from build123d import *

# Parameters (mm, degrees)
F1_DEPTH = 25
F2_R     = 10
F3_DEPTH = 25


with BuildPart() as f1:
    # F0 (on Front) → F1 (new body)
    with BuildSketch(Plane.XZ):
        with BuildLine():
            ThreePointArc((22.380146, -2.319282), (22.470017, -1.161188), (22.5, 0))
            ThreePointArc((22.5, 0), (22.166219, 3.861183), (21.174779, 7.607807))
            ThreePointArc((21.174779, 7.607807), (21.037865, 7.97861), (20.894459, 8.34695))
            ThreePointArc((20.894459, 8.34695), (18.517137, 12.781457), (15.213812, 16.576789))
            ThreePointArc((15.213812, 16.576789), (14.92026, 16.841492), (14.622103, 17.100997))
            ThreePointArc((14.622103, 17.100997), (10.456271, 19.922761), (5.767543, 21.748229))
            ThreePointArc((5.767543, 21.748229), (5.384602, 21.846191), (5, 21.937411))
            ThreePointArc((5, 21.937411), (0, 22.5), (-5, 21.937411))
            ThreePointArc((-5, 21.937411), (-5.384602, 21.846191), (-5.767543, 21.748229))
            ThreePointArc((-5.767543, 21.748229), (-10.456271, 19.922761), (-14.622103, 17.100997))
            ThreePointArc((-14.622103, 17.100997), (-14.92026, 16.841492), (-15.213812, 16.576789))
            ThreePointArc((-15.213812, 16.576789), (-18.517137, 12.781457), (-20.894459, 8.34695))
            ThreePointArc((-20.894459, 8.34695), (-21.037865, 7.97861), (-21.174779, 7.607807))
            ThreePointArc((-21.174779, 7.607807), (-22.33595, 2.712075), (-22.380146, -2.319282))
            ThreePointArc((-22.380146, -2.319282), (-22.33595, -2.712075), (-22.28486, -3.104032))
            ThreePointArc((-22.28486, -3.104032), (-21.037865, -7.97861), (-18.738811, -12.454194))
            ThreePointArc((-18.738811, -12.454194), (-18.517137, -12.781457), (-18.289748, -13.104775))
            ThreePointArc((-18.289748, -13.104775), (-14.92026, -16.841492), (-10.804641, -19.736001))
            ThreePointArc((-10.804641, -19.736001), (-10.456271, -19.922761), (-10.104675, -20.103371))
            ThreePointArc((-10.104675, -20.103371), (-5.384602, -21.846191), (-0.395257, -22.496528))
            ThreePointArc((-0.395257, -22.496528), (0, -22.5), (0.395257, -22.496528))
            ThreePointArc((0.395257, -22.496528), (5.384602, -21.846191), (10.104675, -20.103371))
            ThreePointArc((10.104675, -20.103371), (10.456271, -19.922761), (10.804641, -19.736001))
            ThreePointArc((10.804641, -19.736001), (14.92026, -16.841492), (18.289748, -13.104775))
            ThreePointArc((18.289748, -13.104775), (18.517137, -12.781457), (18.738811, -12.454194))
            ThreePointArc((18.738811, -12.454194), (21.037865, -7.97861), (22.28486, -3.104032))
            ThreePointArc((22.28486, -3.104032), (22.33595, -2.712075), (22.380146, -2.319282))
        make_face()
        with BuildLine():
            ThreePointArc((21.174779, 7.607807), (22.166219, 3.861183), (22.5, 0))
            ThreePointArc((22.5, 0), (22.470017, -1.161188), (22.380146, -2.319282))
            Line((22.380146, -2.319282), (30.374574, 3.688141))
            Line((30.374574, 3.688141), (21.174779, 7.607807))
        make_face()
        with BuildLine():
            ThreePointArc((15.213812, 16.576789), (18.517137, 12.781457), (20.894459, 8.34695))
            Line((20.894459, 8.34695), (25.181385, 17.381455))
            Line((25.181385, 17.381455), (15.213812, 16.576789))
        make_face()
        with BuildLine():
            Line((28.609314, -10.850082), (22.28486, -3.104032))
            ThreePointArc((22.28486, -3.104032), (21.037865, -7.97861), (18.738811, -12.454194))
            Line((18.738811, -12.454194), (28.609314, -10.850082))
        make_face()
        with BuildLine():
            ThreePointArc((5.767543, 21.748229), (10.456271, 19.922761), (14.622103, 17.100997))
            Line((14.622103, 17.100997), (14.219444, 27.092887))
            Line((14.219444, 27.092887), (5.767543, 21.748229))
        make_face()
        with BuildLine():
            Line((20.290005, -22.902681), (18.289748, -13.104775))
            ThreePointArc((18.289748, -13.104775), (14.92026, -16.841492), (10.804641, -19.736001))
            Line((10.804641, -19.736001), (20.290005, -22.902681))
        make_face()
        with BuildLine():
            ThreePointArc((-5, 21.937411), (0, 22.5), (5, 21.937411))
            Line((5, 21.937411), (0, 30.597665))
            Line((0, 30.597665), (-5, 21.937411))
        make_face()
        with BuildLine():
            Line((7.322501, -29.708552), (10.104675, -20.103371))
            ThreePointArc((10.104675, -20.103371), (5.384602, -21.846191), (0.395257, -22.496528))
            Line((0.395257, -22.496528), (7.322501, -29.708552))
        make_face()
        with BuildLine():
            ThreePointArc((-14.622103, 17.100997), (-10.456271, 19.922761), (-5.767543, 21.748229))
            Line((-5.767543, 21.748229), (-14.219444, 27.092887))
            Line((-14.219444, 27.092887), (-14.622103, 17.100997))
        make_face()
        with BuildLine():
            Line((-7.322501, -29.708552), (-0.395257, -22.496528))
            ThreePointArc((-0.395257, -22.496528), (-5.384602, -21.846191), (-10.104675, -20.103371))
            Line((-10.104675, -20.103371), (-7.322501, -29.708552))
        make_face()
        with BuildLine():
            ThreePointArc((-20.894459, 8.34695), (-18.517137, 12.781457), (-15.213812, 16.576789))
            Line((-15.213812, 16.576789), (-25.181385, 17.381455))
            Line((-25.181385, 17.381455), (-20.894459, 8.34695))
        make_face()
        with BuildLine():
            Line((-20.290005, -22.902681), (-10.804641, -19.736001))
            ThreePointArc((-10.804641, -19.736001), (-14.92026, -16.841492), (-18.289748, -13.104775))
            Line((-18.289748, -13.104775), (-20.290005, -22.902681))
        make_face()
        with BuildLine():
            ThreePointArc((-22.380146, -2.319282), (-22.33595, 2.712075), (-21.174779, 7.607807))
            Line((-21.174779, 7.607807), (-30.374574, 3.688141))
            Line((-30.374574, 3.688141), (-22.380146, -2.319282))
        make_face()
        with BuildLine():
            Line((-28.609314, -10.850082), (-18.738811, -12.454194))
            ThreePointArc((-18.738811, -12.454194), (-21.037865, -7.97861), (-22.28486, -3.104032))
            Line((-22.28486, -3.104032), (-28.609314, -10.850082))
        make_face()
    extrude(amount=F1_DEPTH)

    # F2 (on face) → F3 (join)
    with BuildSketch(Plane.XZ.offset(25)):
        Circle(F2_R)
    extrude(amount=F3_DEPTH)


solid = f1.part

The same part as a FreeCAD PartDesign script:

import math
import FreeCAD as App
import Part
import Sketcher
Q = App.Units.Quantity

doc = App.newDocument("Part")
body = doc.addObject("PartDesign::Body", "Body")

# Sketch on XZ plane
sketch1 = doc.addObject("Sketcher::SketchObject", "Sketch")
body.addObject(sketch1)
sketch1.AttachmentSupport = (doc.XZ_Plane, [""])
sketch1.MapMode = "FlatFace"
sketch1.addGeometry(Part.ArcOfCircle(Part.Circle(App.Vector(-0.001459, -0.000554, 0), App.Vector(0, 0, 1), 22.50156), math.radians(19.762738), math.radians(21.775728)), False)
sketch1.addGeometry(Part.LineSegment(App.Vector(20.894459, 8.34695, 0), App.Vector(25.181385, 17.381455, 0)), False)
sketch1.addGeometry(Part.LineSegment(App.Vector(25.181385, 17.381455, 0), App.Vector(15.213812, 16.576789, 0)), False)
sketch1.addGeometry(Part.ArcOfCircle(Part.Circle(App.Vector(0.000907, 0.00101, 0), App.Vector(0, 0, 1), 22.498643), math.radians(47.454935), math.radians(49.468189)), False)
sketch1.addGeometry(Part.LineSegment(App.Vector(14.622103, 17.100997, 0), App.Vector(14.219444, 27.092887, 0)), False)
sketch1.addGeometry(Part.LineSegment(App.Vector(14.219444, 27.092887, 0), App.Vector(5.767543, 21.748229, 0)), False)
sketch1.addGeometry(Part.ArcOfCircle(Part.Circle(App.Vector(-0.000309, -0.001293, 0), App.Vector(0, 0, 1), 22.501329), math.radians(75.147366), math.radians(77.160377)), False)
sketch1.addGeometry(Part.LineSegment(App.Vector(5, 21.937411, 0), App.Vector(0, 30.597665, 0)), False)
sketch1.addGeometry(Part.LineSegment(App.Vector(0, 30.597665, 0), App.Vector(-5, 21.937411, 0)), False)
sketch1.addGeometry(Part.ArcOfCircle(Part.Circle(App.Vector(0.000309, -0.001293, 0), App.Vector(0, 0, 1), 22.501329), math.radians(102.839623), math.radians(104.852634)), False)
sketch1.addGeometry(Part.LineSegment(App.Vector(-5.767543, 21.748229, 0), App.Vector(-14.219444, 27.092887, 0)), False)
sketch1.addGeometry(Part.LineSegment(App.Vector(-14.219444, 27.092887, 0), App.Vector(-14.622103, 17.100997, 0)), False)
sketch1.addGeometry(Part.ArcOfCircle(Part.Circle(App.Vector(-0.000907, 0.00101, 0), App.Vector(0, 0, 1), 22.498643), math.radians(130.531811), math.radians(132.545065)), False)
sketch1.addGeometry(Part.LineSegment(App.Vector(-15.213812, 16.576789, 0), App.Vector(-25.181385, 17.381455, 0)), False)
sketch1.addGeometry(Part.LineSegment(App.Vector(-25.181385, 17.381455, 0), App.Vector(-20.894459, 8.34695, 0)), False)
sketch1.addGeometry(Part.ArcOfCircle(Part.Circle(App.Vector(0.001459, -0.000554, 0), App.Vector(0, 0, 1), 22.50156), math.radians(158.224272), math.radians(160.237262)), False)
sketch1.addGeometry(Part.LineSegment(App.Vector(-21.174779, 7.607807, 0), App.Vector(-30.374574, 3.688141, 0)), False)
sketch1.addGeometry(Part.LineSegment(App.Vector(-30.374574, 3.688141, 0), App.Vector(-22.380146, -2.319282, 0)), False)
sketch1.addGeometry(Part.ArcOfCircle(Part.Circle(App.Vector(-0.001613, -0.000193, 0), App.Vector(0, 0, 1), 22.498376), math.radians(-174.083554), math.radians(-172.070278)), False)
sketch1.addGeometry(Part.LineSegment(App.Vector(-22.28486, -3.104032, 0), App.Vector(-28.609314, -10.850082, 0)), False)
sketch1.addGeometry(Part.LineSegment(App.Vector(-28.609314, -10.850082, 0), App.Vector(-18.738811, -12.454194, 0)), False)
sketch1.addGeometry(Part.ArcOfCircle(Part.Circle(App.Vector(-0.000931, -0.000661, 0), App.Vector(0, 0, 1), 22.498859), math.radians(-146.391271), math.radians(-144.378036)), False)
sketch1.addGeometry(Part.LineSegment(App.Vector(-18.289748, -13.104775, 0), App.Vector(-20.290005, -22.902681, 0)), False)
sketch1.addGeometry(Part.LineSegment(App.Vector(-20.290005, -22.902681, 0), App.Vector(-10.804641, -19.736001, 0)), False)
sketch1.addGeometry(Part.ArcOfCircle(Part.Circle(App.Vector(-0.00112, -0.002107, 0), App.Vector(0, 0, 1), 22.497614), math.radians(-118.698949), math.radians(-116.685603)), False)
sketch1.addGeometry(Part.LineSegment(App.Vector(-10.104675, -20.103371, 0), App.Vector(-7.322501, -29.708552, 0)), False)
sketch1.addGeometry(Part.LineSegment(App.Vector(-7.322501, -29.708552, 0), App.Vector(-0.395257, -22.496528, 0)), False)
sketch1.addGeometry(Part.ArcOfCircle(Part.Circle(App.Vector(0, 0.000022, 0), App.Vector(0, 0, 1), 22.500022), math.radians(-91.006564), math.radians(-88.993436)), False)
sketch1.addGeometry(Part.LineSegment(App.Vector(0.395257, -22.496528, 0), App.Vector(7.322501, -29.708552, 0)), False)
sketch1.addGeometry(Part.LineSegment(App.Vector(7.322501, -29.708552, 0), App.Vector(10.104675, -20.103371, 0)), False)
sketch1.addGeometry(Part.ArcOfCircle(Part.Circle(App.Vector(0.00112, -0.002107, 0), App.Vector(0, 0, 1), 22.497614), math.radians(-63.314397), math.radians(-61.301051)), False)
sketch1.addGeometry(Part.LineSegment(App.Vector(10.804641, -19.736001, 0), App.Vector(20.290005, -22.902681, 0)), False)
sketch1.addGeometry(Part.LineSegment(App.Vector(20.290005, -22.902681, 0), App.Vector(18.289748, -13.104775, 0)), False)
sketch1.addGeometry(Part.ArcOfCircle(Part.Circle(App.Vector(0.000931, -0.000661, 0), App.Vector(0, 0, 1), 22.498859), math.radians(-35.621964), math.radians(-33.608729)), False)
sketch1.addGeometry(Part.LineSegment(App.Vector(18.738811, -12.454194, 0), App.Vector(28.609314, -10.850082, 0)), False)
sketch1.addGeometry(Part.LineSegment(App.Vector(28.609314, -10.850082, 0), App.Vector(22.28486, -3.104032, 0)), False)
sketch1.addGeometry(Part.ArcOfCircle(Part.Circle(App.Vector(0.001613, -0.000193, 0), App.Vector(0, 0, 1), 22.498376), math.radians(-7.929722), math.radians(-5.916446)), False)
sketch1.addGeometry(Part.LineSegment(App.Vector(22.380146, -2.319282, 0), App.Vector(30.374574, 3.688141, 0)), False)
sketch1.addGeometry(Part.LineSegment(App.Vector(30.374574, 3.688141, 0), App.Vector(21.174779, 7.607807, 0)), False)
sketch1.addConstraint(Sketcher.Constraint("Coincident", 0, 2, 1, 1))
sketch1.addConstraint(Sketcher.Constraint("Coincident", 1, 2, 2, 1))
sketch1.addConstraint(Sketcher.Constraint("Coincident", 2, 2, 3, 1))
sketch1.addConstraint(Sketcher.Constraint("Coincident", 3, 2, 4, 1))
sketch1.addConstraint(Sketcher.Constraint("Coincident", 4, 2, 5, 1))
sketch1.addConstraint(Sketcher.Constraint("Coincident", 5, 2, 6, 1))
sketch1.addConstraint(Sketcher.Constraint("Coincident", 6, 2, 7, 1))
sketch1.addConstraint(Sketcher.Constraint("Coincident", 7, 2, 8, 1))
sketch1.addConstraint(Sketcher.Constraint("Coincident", 8, 2, 9, 1))
sketch1.addConstraint(Sketcher.Constraint("Coincident", 9, 2, 10, 1))
sketch1.addConstraint(Sketcher.Constraint("Coincident", 10, 2, 11, 1))
sketch1.addConstraint(Sketcher.Constraint("Coincident", 11, 2, 12, 1))
sketch1.addConstraint(Sketcher.Constraint("Coincident", 12, 2, 13, 1))
sketch1.addConstraint(Sketcher.Constraint("Coincident", 13, 2, 14, 1))
sketch1.addConstraint(Sketcher.Constraint("Coincident", 14, 2, 15, 1))
sketch1.addConstraint(Sketcher.Constraint("Coincident", 15, 2, 16, 1))
sketch1.addConstraint(Sketcher.Constraint("Coincident", 16, 2, 17, 1))
sketch1.addConstraint(Sketcher.Constraint("Coincident", 17, 2, 18, 1))
sketch1.addConstraint(Sketcher.Constraint("Coincident", 18, 2, 19, 1))
sketch1.addConstraint(Sketcher.Constraint("Coincident", 19, 2, 20, 1))
sketch1.addConstraint(Sketcher.Constraint("Coincident", 20, 2, 21, 1))
sketch1.addConstraint(Sketcher.Constraint("Coincident", 21, 2, 22, 1))
sketch1.addConstraint(Sketcher.Constraint("Coincident", 22, 2, 23, 1))
sketch1.addConstraint(Sketcher.Constraint("Coincident", 23, 2, 24, 1))
sketch1.addConstraint(Sketcher.Constraint("Coincident", 24, 2, 25, 1))
sketch1.addConstraint(Sketcher.Constraint("Coincident", 25, 2, 26, 1))
sketch1.addConstraint(Sketcher.Constraint("Coincident", 26, 2, 27, 1))
sketch1.addConstraint(Sketcher.Constraint("Coincident", 27, 2, 28, 1))
sketch1.addConstraint(Sketcher.Constraint("Coincident", 28, 2, 29, 1))
sketch1.addConstraint(Sketcher.Constraint("Coincident", 29, 2, 30, 1))
sketch1.addConstraint(Sketcher.Constraint("Coincident", 30, 2, 31, 1))
sketch1.addConstraint(Sketcher.Constraint("Coincident", 31, 2, 32, 1))
sketch1.addConstraint(Sketcher.Constraint("Coincident", 32, 2, 33, 1))
sketch1.addConstraint(Sketcher.Constraint("Coincident", 33, 2, 34, 1))
sketch1.addConstraint(Sketcher.Constraint("Coincident", 34, 2, 35, 1))
sketch1.addConstraint(Sketcher.Constraint("Coincident", 35, 2, 36, 1))
sketch1.addConstraint(Sketcher.Constraint("Coincident", 36, 2, 37, 1))
sketch1.addConstraint(Sketcher.Constraint("Coincident", 37, 2, 38, 1))
sketch1.addConstraint(Sketcher.Constraint("Coincident", 38, 2, 0, 1))
sketch1.addConstraint(Sketcher.Constraint("Equal", 6, 9))
sketch1.addConstraint(Sketcher.Constraint("Equal", 3, 12))
sketch1.addConstraint(Sketcher.Constraint("Equal", 0, 15))
sketch1.addConstraint(Sketcher.Constraint("Equal", 24, 30))
sketch1.addConstraint(Sketcher.Constraint("Equal", 21, 33))
sketch1.addConstraint(Sketcher.Constraint("Equal", 18, 36))
sketch1.addConstraint(Sketcher.Constraint("Symmetric", 6, 3, 9, 3, -2))
sketch1.addConstraint(Sketcher.Constraint("Symmetric", 3, 3, 12, 3, -2))
sketch1.addConstraint(Sketcher.Constraint("Symmetric", 0, 3, 15, 3, -2))
sketch1.addConstraint(Sketcher.Constraint("Symmetric", 24, 3, 30, 3, -2))
sketch1.addConstraint(Sketcher.Constraint("Symmetric", 21, 3, 33, 3, -2))
sketch1.addConstraint(Sketcher.Constraint("Symmetric", 18, 3, 36, 3, -2))
sketch1.addConstraint(Sketcher.Constraint("Symmetric", 4, 2, 10, 2, -2))
sketch1.addConstraint(Sketcher.Constraint("Symmetric", 1, 2, 13, 2, -2))
sketch1.addConstraint(Sketcher.Constraint("Symmetric", 26, 2, 27, 2, -2))
sketch1.addConstraint(Sketcher.Constraint("Symmetric", 25, 2, 28, 2, -2))
sketch1.addConstraint(Sketcher.Constraint("Symmetric", 22, 2, 31, 2, -2))
sketch1.addConstraint(Sketcher.Constraint("Symmetric", 19, 2, 34, 2, -2))
sketch1.addConstraint(Sketcher.Constraint("Symmetric", 16, 2, 37, 2, -2))
sketch1.addConstraint(Sketcher.Constraint("PointOnObject", 7, 2, -2))
sketch1.addConstraint(Sketcher.Constraint("Horizontal", 6, 2, 8, 2))
sketch1.addConstraint(Sketcher.Constraint("Horizontal", 5, 2, 9, 2))
sketch1.addConstraint(Sketcher.Constraint("Horizontal", 3, 2, 11, 2))
sketch1.addConstraint(Sketcher.Constraint("Horizontal", 2, 2, 12, 2))
sketch1.addConstraint(Sketcher.Constraint("Horizontal", 0, 2, 14, 2))
sketch1.addConstraint(Sketcher.Constraint("Horizontal", 24, 2, 29, 2))
sketch1.addConstraint(Sketcher.Constraint("Horizontal", 23, 2, 30, 2))
sketch1.addConstraint(Sketcher.Constraint("Horizontal", 21, 2, 32, 2))
sketch1.addConstraint(Sketcher.Constraint("Horizontal", 20, 2, 33, 2))
sketch1.addConstraint(Sketcher.Constraint("Horizontal", 18, 2, 35, 2))
sketch1.addConstraint(Sketcher.Constraint("Horizontal", 17, 2, 36, 2))
sketch1.addConstraint(Sketcher.Constraint("Horizontal", 15, 2, 38, 2))
sketch1.addConstraint(Sketcher.Constraint("Equal", 1, 2))
sketch1.addConstraint(Sketcher.Constraint("Equal", 2, 4))
sketch1.addConstraint(Sketcher.Constraint("Equal", 4, 5))
sketch1.addConstraint(Sketcher.Constraint("Equal", 5, 7))
sketch1.addConstraint(Sketcher.Constraint("Equal", 14, 16))
sketch1.addConstraint(Sketcher.Constraint("Equal", 16, 17))
sketch1.addConstraint(Sketcher.Constraint("Equal", 17, 19))
sketch1.addConstraint(Sketcher.Constraint("Equal", 19, 20))
sketch1.addConstraint(Sketcher.Constraint("Equal", 20, 22))
sketch1.addConstraint(Sketcher.Constraint("Equal", 22, 23))
sketch1.addConstraint(Sketcher.Constraint("Equal", 23, 25))
sketch1.addConstraint(Sketcher.Constraint("Equal", 25, 26))
sketch1.addConstraint(Sketcher.Constraint("Angle", 7, Q("120 deg")))
sketch1.addConstraint(Sketcher.Constraint("Distance", 1, Q("10.000001 mm")))
sketch1.addConstraint(Sketcher.Constraint("Radius", 0, Q("22.50156 mm")))
sketch1.addConstraint(Sketcher.Constraint("Radius", 6, Q("22.501329 mm")))
sketch1.addConstraint(Sketcher.Constraint("Radius", 21, Q("22.498859 mm")))
sketch1.addConstraint(Sketcher.Constraint("Radius", 27, Q("22.500022 mm")))
sketch1.addConstraint(Sketcher.Constraint("DistanceY", 23, 2, -1, 1, Q("19.736001 mm")))
sketch1.addConstraint(Sketcher.Constraint("Radius", 3, Q("22.498643 mm")))
sketch1.addConstraint(Sketcher.Constraint("Radius", 18, Q("22.498376 mm")))
sketch1.addConstraint(Sketcher.Constraint("Radius", 24, Q("22.497614 mm")))
sketch1.addConstraint(Sketcher.Constraint("DistanceX", 15, 3, 0, 2, Q("20.893 mm")))
sketch1.addConstraint(Sketcher.Constraint("DistanceY", 20, 2, 15, 2, Q("20.062001 mm")))
sketch1.addConstraint(Sketcher.Constraint("DistanceX", 25, 2, -1, 1, Q("7.322501 mm")))
sketch1.addConstraint(Sketcher.Constraint("DistanceX", 9, 3, 3, 3, Q("0.000598 mm")))
sketch1.addConstraint(Sketcher.Constraint("DistanceY", 6, 3, 18, 3, Q("0.0011 mm")))
sketch1.addConstraint(Sketcher.Constraint("DistanceX", 36, 3, 2, 2, Q("15.212199 mm")))
sketch1.addConstraint(Sketcher.Constraint("DistanceX", 5, 2, 4, 2, Q("8.451901 mm")))
sketch1.addConstraint(Sketcher.Constraint("DistanceY", 12, 2, 10, 2, Q("10.516098 mm")))
sketch1.addConstraint(Sketcher.Constraint("DistanceX", 18, 2, 14, 2, Q("1.390401 mm")))
sketch1.addConstraint(Sketcher.Constraint("DistanceY", 19, 2, 17, 2, Q("8.5308 mm")))
sketch1.addConstraint(Sketcher.Constraint("DistanceX", 17, 2, 21, 2, Q("4.090398 mm")))
sketch1.addConstraint(Sketcher.Constraint("DistanceY", 22, 2, 19, 2, Q("12.052599 mm")))
sketch1.addConstraint(Sketcher.Constraint("DistanceX", 0, 3, -1, 1, Q("0.001459 mm")))
sketch1.addConstraint(Sketcher.Constraint("DistanceY", -1, 1, 3, 3, Q("0.00101 mm")))
sketch1.addConstraint(Sketcher.Constraint("DistanceX", 6, 3, -1, 1, Q("0.000309 mm")))
sketch1.addConstraint(Sketcher.Constraint("DistanceX", 21, 3, -1, 1, Q("0.000931 mm")))
sketch1.addConstraint(Sketcher.Constraint("DistanceY", 21, 3, -1, 1, Q("0.000661 mm")))
sketch1.addConstraint(Sketcher.Constraint("DistanceX", 24, 3, -1, 1, Q("0.00112 mm")))
sketch1.addConstraint(Sketcher.Constraint("DistanceY", -1, 1, 0, 2, Q("8.34695 mm")))
sketch1.addConstraint(Sketcher.Constraint("DistanceY", -1, 1, 2, 2, Q("16.576789 mm")))
sketch1.addConstraint(Sketcher.Constraint("DistanceY", -1, 1, 6, 2, Q("21.937411 mm")))
sketch1.addConstraint(Sketcher.Constraint("DistanceX", 15, 2, -1, 1, Q("21.174779 mm")))
sketch1.addConstraint(Sketcher.Constraint("DistanceY", 24, 2, -1, 1, Q("20.103371 mm")))
sketch1.addConstraint(Sketcher.Constraint("DistanceY", 26, 2, -1, 1, Q("22.496528 mm")))
pad1 = doc.addObject("PartDesign::Pad", "Pad")
body.addObject(pad1)
pad1.Profile = sketch1
pad1.Length = 25

# Sketch on XZ plane
sketch2 = doc.addObject("Sketcher::SketchObject", "Sketch001")
body.addObject(sketch2)
sketch2.AttachmentSupport = (doc.XZ_Plane, [""])
sketch2.MapMode = "FlatFace"
sketch2.AttachmentOffset = App.Placement(App.Vector(0, 0, 25), App.Rotation())
sketch2.addGeometry(Part.Circle(App.Vector(0, 0, 0), App.Vector(0, 0, 1), 10), False)
sketch2.addConstraint(Sketcher.Constraint("Coincident", 0, 3, -1, 1))
sketch2.addConstraint(Sketcher.Constraint("Diameter", 0, Q("20 mm")))
pad2 = doc.addObject("PartDesign::Pad", "Pad001")
body.addObject(pad2)
pad2.Profile = sketch2
pad2.Length = 25

doc.recompute()
